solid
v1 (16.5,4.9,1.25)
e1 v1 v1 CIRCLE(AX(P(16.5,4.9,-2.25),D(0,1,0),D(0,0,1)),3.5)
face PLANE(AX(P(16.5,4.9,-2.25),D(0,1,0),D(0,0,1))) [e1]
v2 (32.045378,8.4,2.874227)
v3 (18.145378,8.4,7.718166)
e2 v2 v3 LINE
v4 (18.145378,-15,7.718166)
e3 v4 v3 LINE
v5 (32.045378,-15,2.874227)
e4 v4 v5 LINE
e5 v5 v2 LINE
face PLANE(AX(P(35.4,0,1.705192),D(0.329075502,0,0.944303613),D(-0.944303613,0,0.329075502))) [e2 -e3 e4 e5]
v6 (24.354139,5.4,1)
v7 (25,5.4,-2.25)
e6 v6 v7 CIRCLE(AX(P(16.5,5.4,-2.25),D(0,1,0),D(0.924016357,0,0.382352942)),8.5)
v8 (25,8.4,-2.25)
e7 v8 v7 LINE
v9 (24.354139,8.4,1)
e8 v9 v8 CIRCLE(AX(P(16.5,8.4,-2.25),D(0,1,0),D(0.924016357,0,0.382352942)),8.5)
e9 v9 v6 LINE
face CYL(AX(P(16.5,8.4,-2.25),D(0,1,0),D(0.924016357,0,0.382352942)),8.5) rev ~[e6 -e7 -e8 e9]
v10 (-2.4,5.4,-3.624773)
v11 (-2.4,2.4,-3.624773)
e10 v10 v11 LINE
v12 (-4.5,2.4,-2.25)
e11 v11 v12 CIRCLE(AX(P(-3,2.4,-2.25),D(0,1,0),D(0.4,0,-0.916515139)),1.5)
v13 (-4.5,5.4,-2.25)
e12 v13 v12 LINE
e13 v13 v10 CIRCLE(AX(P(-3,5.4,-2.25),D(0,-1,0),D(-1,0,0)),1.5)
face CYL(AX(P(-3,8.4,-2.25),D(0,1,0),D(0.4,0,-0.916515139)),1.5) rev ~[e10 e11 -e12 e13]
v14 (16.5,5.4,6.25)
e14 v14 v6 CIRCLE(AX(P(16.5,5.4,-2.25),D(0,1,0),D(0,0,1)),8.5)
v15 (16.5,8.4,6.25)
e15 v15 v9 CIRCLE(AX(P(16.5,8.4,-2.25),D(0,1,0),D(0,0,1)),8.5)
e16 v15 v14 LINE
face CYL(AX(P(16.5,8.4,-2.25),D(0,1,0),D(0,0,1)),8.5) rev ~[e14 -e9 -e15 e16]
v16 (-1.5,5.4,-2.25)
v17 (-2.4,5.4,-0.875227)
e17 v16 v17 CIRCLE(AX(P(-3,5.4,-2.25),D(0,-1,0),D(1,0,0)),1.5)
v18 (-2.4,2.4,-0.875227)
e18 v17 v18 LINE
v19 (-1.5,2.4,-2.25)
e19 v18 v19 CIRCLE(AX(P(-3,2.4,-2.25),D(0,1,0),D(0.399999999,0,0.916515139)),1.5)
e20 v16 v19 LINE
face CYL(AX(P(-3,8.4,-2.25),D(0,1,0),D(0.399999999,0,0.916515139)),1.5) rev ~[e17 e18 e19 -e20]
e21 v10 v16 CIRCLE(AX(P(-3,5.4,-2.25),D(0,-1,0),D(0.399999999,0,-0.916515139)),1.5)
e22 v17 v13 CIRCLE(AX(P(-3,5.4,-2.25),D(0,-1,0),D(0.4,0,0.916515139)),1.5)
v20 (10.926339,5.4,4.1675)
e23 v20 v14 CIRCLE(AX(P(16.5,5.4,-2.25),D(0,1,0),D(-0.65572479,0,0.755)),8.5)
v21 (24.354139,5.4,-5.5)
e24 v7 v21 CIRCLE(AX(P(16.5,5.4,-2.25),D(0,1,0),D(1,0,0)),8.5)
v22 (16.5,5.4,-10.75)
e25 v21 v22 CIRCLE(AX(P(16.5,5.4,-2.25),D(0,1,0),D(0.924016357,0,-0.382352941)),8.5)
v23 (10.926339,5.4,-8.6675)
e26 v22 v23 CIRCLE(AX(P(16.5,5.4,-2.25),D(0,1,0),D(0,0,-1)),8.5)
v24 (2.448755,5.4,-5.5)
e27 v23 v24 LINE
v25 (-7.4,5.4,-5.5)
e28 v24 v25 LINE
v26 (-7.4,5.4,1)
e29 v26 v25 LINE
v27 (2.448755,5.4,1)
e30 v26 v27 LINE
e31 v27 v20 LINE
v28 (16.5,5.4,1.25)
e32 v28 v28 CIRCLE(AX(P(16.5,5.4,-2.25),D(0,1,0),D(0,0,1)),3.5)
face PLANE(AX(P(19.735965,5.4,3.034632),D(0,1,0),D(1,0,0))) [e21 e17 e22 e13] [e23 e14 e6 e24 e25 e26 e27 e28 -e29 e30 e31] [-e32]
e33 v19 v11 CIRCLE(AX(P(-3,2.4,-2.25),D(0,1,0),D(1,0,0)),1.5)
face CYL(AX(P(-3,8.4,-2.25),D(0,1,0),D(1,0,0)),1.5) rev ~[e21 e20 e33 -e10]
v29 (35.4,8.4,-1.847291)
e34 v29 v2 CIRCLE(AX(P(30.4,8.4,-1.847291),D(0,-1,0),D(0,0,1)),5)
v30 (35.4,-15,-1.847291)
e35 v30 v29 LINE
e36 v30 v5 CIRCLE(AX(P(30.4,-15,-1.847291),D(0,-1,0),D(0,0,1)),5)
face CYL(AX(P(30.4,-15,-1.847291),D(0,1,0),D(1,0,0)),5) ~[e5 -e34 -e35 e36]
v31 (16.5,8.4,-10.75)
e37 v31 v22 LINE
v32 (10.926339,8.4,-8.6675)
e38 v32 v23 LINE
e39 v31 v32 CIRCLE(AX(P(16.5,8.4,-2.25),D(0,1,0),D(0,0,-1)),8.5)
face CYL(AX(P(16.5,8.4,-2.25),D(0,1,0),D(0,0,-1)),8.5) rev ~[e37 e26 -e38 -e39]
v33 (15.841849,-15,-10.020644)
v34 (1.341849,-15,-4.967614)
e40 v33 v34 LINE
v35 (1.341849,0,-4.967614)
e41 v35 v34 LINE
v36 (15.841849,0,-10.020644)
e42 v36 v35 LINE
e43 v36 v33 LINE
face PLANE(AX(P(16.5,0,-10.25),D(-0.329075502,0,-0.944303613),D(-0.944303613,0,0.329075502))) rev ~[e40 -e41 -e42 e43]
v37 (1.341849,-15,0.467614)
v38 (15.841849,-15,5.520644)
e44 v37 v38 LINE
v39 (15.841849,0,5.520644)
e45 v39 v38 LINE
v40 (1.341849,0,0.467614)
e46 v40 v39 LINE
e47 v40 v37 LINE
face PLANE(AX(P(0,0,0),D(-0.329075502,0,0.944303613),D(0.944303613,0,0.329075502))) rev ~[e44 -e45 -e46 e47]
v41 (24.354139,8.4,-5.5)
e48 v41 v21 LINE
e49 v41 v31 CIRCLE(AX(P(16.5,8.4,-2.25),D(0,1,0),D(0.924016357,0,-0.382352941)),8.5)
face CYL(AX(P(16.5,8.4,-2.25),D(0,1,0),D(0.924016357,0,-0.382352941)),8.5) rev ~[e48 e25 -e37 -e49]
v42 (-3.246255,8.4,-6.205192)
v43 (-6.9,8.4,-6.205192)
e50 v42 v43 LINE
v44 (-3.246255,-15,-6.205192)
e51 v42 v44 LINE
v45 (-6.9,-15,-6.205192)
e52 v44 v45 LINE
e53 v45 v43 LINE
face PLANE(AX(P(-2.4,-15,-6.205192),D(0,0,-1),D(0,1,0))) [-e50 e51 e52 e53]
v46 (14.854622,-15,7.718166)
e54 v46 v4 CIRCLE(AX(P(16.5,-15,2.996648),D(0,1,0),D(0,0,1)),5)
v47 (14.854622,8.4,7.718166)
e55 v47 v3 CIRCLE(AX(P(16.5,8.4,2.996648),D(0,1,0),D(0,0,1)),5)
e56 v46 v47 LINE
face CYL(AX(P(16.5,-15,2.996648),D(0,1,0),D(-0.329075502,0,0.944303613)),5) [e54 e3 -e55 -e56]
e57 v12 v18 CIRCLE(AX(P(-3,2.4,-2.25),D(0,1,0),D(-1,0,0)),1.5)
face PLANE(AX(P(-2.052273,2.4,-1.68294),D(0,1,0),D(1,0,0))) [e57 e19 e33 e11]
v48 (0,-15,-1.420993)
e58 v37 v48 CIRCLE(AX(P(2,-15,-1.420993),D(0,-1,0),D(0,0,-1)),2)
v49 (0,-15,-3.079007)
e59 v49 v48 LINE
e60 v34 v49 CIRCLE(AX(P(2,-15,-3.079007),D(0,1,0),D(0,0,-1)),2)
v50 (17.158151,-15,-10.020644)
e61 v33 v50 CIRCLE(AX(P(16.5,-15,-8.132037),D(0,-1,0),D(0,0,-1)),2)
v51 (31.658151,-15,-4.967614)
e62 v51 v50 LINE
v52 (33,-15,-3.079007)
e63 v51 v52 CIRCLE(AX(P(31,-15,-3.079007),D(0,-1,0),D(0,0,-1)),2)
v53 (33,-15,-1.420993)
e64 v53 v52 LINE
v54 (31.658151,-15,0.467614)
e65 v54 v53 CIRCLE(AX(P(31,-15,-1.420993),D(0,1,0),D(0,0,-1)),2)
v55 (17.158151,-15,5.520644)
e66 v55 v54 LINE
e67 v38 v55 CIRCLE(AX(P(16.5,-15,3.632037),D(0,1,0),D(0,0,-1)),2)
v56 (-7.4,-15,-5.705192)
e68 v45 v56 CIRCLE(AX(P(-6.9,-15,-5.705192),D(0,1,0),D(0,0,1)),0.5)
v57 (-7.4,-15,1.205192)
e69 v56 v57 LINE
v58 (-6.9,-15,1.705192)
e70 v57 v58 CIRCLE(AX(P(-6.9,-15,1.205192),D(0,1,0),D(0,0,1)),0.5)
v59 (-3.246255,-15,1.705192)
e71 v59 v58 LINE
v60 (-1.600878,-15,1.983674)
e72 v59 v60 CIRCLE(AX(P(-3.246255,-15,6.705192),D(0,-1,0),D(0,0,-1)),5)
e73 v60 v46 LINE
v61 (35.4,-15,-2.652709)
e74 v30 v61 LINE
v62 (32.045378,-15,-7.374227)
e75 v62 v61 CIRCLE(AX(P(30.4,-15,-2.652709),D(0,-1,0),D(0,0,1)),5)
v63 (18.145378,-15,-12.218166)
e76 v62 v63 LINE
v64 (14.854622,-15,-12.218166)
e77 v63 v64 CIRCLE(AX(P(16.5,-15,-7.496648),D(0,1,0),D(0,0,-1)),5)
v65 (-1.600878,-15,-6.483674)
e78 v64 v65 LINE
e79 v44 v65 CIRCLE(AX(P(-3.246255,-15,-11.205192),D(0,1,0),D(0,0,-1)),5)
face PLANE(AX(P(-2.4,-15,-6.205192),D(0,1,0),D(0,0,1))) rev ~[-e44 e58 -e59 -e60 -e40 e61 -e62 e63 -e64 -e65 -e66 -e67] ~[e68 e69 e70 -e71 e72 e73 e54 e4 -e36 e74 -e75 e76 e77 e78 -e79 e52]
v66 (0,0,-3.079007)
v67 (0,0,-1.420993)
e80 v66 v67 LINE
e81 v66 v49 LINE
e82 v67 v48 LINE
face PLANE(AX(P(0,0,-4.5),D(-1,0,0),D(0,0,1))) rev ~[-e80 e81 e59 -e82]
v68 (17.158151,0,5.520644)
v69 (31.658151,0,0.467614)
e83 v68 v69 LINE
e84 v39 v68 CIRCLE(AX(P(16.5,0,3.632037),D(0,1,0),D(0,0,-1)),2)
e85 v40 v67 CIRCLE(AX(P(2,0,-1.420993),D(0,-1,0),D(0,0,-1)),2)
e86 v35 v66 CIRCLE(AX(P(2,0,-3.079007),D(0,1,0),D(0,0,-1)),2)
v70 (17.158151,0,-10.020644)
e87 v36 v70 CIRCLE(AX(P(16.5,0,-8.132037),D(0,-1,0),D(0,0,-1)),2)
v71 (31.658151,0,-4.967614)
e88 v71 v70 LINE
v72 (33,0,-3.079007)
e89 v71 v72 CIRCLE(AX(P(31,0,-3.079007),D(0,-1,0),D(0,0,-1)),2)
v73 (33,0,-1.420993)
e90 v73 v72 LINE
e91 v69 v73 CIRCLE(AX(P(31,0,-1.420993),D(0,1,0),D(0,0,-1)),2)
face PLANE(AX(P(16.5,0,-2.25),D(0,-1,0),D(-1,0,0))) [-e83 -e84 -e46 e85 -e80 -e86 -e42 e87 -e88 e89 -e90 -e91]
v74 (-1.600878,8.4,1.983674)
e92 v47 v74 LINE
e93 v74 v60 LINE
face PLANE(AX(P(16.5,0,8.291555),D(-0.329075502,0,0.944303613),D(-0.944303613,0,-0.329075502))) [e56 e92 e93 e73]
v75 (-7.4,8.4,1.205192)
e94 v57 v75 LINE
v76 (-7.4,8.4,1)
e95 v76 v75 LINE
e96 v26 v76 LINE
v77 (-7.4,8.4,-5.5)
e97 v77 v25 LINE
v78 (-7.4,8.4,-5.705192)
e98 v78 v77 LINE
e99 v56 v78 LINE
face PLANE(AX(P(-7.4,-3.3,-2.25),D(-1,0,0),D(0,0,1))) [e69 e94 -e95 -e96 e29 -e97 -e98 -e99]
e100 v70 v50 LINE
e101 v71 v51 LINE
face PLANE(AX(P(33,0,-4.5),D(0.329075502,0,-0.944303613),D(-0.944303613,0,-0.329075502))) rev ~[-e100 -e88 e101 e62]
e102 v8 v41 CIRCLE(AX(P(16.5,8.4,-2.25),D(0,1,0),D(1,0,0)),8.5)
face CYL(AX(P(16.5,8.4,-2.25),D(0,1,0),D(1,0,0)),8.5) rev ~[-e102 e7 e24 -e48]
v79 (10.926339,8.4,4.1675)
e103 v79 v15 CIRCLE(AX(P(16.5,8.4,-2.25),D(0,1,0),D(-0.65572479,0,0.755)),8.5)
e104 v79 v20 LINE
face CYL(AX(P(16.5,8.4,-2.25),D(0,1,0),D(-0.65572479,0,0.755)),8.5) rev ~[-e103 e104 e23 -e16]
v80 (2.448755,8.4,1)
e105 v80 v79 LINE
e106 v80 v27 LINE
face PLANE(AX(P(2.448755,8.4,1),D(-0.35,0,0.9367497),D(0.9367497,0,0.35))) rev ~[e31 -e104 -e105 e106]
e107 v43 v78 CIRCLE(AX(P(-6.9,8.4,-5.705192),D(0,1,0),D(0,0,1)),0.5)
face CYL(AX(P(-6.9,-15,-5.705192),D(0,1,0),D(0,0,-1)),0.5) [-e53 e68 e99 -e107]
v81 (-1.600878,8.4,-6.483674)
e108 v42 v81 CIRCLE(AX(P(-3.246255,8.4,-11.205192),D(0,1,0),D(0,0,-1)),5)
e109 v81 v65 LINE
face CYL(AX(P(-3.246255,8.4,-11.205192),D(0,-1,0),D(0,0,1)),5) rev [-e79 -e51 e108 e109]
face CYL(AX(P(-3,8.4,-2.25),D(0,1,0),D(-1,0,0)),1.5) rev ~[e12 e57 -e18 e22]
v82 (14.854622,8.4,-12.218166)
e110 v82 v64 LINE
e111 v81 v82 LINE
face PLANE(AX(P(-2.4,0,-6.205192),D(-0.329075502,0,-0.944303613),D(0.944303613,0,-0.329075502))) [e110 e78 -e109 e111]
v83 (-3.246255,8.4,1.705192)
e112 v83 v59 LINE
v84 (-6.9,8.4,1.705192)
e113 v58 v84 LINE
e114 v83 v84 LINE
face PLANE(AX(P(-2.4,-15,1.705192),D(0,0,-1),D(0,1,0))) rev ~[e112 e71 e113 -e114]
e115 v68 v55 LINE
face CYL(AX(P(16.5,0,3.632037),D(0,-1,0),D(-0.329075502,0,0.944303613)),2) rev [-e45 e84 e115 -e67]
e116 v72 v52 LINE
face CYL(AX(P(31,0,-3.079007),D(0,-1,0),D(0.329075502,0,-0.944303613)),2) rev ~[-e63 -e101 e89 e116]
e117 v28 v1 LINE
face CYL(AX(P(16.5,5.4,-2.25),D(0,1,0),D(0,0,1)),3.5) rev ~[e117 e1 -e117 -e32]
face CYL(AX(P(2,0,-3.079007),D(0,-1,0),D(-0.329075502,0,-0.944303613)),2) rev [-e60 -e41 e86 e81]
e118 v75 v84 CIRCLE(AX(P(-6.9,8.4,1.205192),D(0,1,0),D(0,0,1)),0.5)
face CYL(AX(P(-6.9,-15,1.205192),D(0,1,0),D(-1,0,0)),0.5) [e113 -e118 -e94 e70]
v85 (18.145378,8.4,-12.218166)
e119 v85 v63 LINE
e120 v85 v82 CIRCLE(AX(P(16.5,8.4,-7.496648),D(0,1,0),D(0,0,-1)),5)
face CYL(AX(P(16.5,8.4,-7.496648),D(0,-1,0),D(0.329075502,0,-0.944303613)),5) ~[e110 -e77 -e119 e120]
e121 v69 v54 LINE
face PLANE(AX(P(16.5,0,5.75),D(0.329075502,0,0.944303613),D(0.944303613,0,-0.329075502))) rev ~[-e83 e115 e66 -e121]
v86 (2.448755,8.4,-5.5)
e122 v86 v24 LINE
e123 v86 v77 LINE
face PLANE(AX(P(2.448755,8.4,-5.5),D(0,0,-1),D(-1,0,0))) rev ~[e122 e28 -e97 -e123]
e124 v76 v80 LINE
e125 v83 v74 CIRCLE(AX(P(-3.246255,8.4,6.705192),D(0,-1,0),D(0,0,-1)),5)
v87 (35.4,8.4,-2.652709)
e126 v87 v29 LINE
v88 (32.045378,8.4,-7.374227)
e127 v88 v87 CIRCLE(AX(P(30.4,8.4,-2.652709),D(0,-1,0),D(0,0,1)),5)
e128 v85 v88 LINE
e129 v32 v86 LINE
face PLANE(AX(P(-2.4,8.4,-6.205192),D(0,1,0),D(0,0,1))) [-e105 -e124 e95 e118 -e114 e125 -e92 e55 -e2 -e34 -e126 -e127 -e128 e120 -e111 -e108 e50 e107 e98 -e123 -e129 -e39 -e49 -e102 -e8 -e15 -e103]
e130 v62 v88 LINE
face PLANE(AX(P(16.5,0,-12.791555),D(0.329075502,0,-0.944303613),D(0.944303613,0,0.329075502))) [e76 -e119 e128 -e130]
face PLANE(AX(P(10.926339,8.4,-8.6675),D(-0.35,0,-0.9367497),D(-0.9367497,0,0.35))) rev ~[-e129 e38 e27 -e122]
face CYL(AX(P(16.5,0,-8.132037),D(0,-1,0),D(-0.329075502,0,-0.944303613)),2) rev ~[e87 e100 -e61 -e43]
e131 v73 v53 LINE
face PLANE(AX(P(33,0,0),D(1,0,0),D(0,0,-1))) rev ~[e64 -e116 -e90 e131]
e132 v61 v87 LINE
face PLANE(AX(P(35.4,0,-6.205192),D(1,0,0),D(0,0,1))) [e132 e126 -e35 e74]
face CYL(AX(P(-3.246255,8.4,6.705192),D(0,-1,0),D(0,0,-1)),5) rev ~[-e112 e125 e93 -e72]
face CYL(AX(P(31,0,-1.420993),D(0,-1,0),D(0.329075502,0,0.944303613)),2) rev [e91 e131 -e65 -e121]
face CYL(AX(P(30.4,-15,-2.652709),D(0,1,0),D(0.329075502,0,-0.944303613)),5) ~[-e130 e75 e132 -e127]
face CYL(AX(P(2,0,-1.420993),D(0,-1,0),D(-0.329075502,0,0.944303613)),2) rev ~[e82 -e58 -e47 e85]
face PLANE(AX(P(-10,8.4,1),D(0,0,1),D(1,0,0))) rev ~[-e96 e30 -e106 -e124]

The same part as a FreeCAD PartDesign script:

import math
import FreeCAD as App
import Part
import Sketcher

V = App.Vector


def edges_at(feature, points):
    """Names of the edges that pass closest to the given points."""
    edges = feature.Shape.Edges
    near = lambda p: min(range(len(edges)), key=lambda i: edges[i].distToShape(Part.Vertex(*p))[0])
    return sorted({f"Edge{near(p) + 1}" for p in points})

doc = App.newDocument("Part")
body = doc.addObject("PartDesign::Body", "Body")

# Sketch on XZ plane
sketch1 = body.newObject("Sketcher::SketchObject", "Sketch")
sketch1.AttachmentSupport = (doc.getObject("XZ_Plane"), [""])
sketch1.MapMode = "FlatFace"
sketch1.addGeometry(Part.LineSegment(V(-2.4, 1.705192, 0), V(16.5, 8.291555, 0)), False)
sketch1.addGeometry(Part.LineSegment(V(16.5, 8.291555, 0), V(35.4, 1.705192, 0)), False)
sketch1.addGeometry(Part.LineSegment(V(35.4, 1.705192, 0), V(35.4, -6.205192, 0)), False)
sketch1.addGeometry(Part.LineSegment(V(35.4, -6.205192, 0), V(16.5, -12.791555, 0)), False)
sketch1.addGeometry(Part.LineSegment(V(16.5, -12.791555, 0), V(-2.4, -6.205192, 0)), False)
sketch1.addGeometry(Part.LineSegment(V(-2.4, -6.205192, 0), V(-2.4, 1.705192, 0)), False)
sketch1.addGeometry(Part.LineSegment(V(16.5, 5.75, 0), V(0, 0, 0)), False)
sketch1.addGeometry(Part.LineSegment(V(0, 0, 0), V(0, -4.5, 0)), False)
sketch1.addGeometry(Part.LineSegment(V(0, -4.5, 0), V(16.5, -10.25, 0)), False)
sketch1.addGeometry(Part.LineSegment(V(16.5, -10.25, 0), V(33, -4.5, 0)), False)
sketch1.addGeometry(Part.LineSegment(V(33, -4.5, 0), V(33, 0, 0)), False)
sketch1.addGeometry(Part.LineSegment(V(33, 0, 0), V(16.5, 5.75, 0)), False)
sketch1.addConstraint(Sketcher.Constraint("Coincident", 0, 2, 1, 1))
sketch1.addConstraint(Sketcher.Constraint("Coincident", 1, 2, 2, 1))
sketch1.addConstraint(Sketcher.Constraint("Coincident", 2, 2, 3, 1))
sketch1.addConstraint(Sketcher.Constraint("Coincident", 3, 2, 4, 1))
sketch1.addConstraint(Sketcher.Constraint("Coincident", 4, 2, 5, 1))
sketch1.addConstraint(Sketcher.Constraint("Coincident", 5, 2, 0, 1))
sketch1.addConstraint(Sketcher.Constraint("Coincident", 6, 2, 7, 1))
sketch1.addConstraint(Sketcher.Constraint("Coincident", 7, 2, 8, 1))
sketch1.addConstraint(Sketcher.Constraint("Coincident", 8, 2, 9, 1))
sketch1.addConstraint(Sketcher.Constraint("Coincident", 9, 2, 10, 1))
sketch1.addConstraint(Sketcher.Constraint("Coincident", 10, 2, 11, 1))
sketch1.addConstraint(Sketcher.Constraint("Coincident", 11, 2, 6, 1))
sketch1.addConstraint(Sketcher.Constraint("Vertical", 2))
sketch1.addConstraint(Sketcher.Constraint("Vertical", 5))
sketch1.addConstraint(Sketcher.Constraint("Vertical", 7))
sketch1.addConstraint(Sketcher.Constraint("Vertical", 10))
sketch1.addConstraint(Sketcher.Constraint("Coincident", 6, 2, -1, 1))
sketch1.addConstraint(Sketcher.Constraint("PointOnObject", 10, 2, -1))
sketch1.addConstraint(Sketcher.Constraint("Parallel", 0, 3))
sketch1.addConstraint(Sketcher.Constraint("Parallel", 1, 4))
sketch1.addConstraint(Sketcher.Constraint("Parallel", 3, 6))
sketch1.addConstraint(Sketcher.Constraint("Parallel", 4, 8))
sketch1.addConstraint(Sketcher.Constraint("Parallel", 6, 9))
sketch1.addConstraint(Sketcher.Constraint("Parallel", 8, 11))
sketch1.addConstraint(Sketcher.Constraint("Horizontal", 2, 2, 4, 2))
sketch1.addConstraint(Sketcher.Constraint("Horizontal", 1, 2, 5, 2))
sketch1.addConstraint(Sketcher.Constraint("Horizontal", 7, 2, 9, 2))
sketch1.addConstraint(Sketcher.Constraint("Vertical", 0, 2, 3, 2))
sketch1.addConstraint(Sketcher.Constraint("Vertical", 3, 2, 8, 2))
sketch1.addConstraint(Sketcher.Constraint("DistanceY", 7, 2, 7, 1, 4.5))
sketch1.addConstraint(Sketcher.Constraint("DistanceX", -1, 1, 9, 2, 33.0))
sketch1.addConstraint(Sketcher.Constraint("DistanceY", 8, 2, 11, 2, 16.0))
sketch1.addConstraint(Sketcher.Constraint("DistanceX", -1, 1, 1, 2, 35.4))
sketch1.addConstraint(Sketcher.Constraint("DistanceY", 2, 2, 2, 1, 7.910384))
sketch1.addConstraint(Sketcher.Constraint("DistanceY", -1, 1, 1, 2, 1.705192))
pad1 = body.newObject("PartDesign::Pad", "Pad")
pad1.Profile = sketch1
pad1.Length = 15
doc.recompute()

fillet = body.newObject("PartDesign::Fillet", "Fillet")
fillet.Base = (pad1, edges_at(pad1, [(0, -7.5, -4.5)]))
fillet.Radius = 2
doc.recompute()

fillet2 = body.newObject("PartDesign::Fillet", "Fillet001")
fillet2.Base = (fillet, edges_at(fillet, [(16.5, -7.5, -10.25)]))
fillet2.Radius = 2
doc.recompute()

fillet3 = body.newObject("PartDesign::Fillet", "Fillet002")
fillet3.Base = (fillet2, edges_at(fillet2, [(33, -7.5, -4.5)]))
fillet3.Radius = 2
doc.recompute()

fillet4 = body.newObject("PartDesign::Fillet", "Fillet003")
fillet4.Base = (fillet3, edges_at(fillet3, [(0, -7.5, 0)]))
fillet4.Radius = 2
doc.recompute()

fillet5 = body.newObject("PartDesign::Fillet", "Fillet004")
fillet5.Base = (fillet4, edges_at(fillet4, [(16.5, -7.5, 5.75)]))
fillet5.Radius = 2
doc.recompute()

fillet6 = body.newObject("PartDesign::Fillet", "Fillet005")
fillet6.Base = (fillet5, edges_at(fillet5, [(33, -7.5, 0)]))
fillet6.Radius = 2

# Sketch on XZ plane
sketch2 = body.newObject("Sketcher::SketchObject", "Sketch001")
sketch2.AttachmentSupport = (doc.getObject("XZ_Plane"), [""])
sketch2.MapMode = "FlatFace"
sketch2.addGeometry(Part.LineSegment(V(-2.4, 1.705192, 0), V(16.5, 8.291555, 0)), False)
sketch2.addGeometry(Part.LineSegment(V(16.5, 8.291555, 0), V(35.4, 1.705192, 0)), False)
sketch2.addGeometry(Part.LineSegment(V(35.4, 1.705192, 0), V(35.4, -6.205192, 0)), False)
sketch2.addGeometry(Part.LineSegment(V(35.4, -6.205192, 0), V(16.5, -12.791555, 0)), False)
sketch2.addGeometry(Part.LineSegment(V(16.5, -12.791555, 0), V(-2.4, -6.205192, 0)), False)
sketch2.addGeometry(Part.LineSegment(V(-2.4, -6.205192, 0), V(-2.4, 1.705192, 0)), False)
sketch2.addConstraint(Sketcher.Constraint("Coincident", 0, 2, 1, 1))
sketch2.addConstraint(Sketcher.Constraint("Coincident", 1, 2, 2, 1))
sketch2.addConstraint(Sketcher.Constraint("Coincident", 2, 2, 3, 1))
sketch2.addConstraint(Sketcher.Constraint("Coincident", 3, 2, 4, 1))
sketch2.addConstraint(Sketcher.Constraint("Coincident", 4, 2, 5, 1))
sketch2.addConstraint(Sketcher.Constraint("Coincident", 5, 2, 0, 1))
sketch2.addConstraint(Sketcher.Constraint("Vertical", 2))
sketch2.addConstraint(Sketcher.Constraint("Vertical", 5))
sketch2.addConstraint(Sketcher.Constraint("Parallel", 0, 3))
sketch2.addConstraint(Sketcher.Constraint("Parallel", 1, 4))
sketch2.addConstraint(Sketcher.Constraint("Horizontal", 2, 2, 4, 2))
sketch2.addConstraint(Sketcher.Constraint("Horizontal", 1, 2, 5, 2))
sketch2.addConstraint(Sketcher.Constraint("Vertical", 0, 2, 3, 2))
sketch2.addConstraint(Sketcher.Constraint("DistanceX", -1, 1, 0, 2, 16.5))
sketch2.addConstraint(Sketcher.Constraint("DistanceX", -1, 1, 1, 2, 35.4))
sketch2.addConstraint(Sketcher.Constraint("Distance", 0, 20.014749))
sketch2.addConstraint(Sketcher.Constraint("DistanceY", 2, 2, 2, 1, 7.910384))
sketch2.addConstraint(Sketcher.Constraint("DistanceY", -1, 1, 1, 2, 1.705192))
pad2 = body.newObject("PartDesign::Pad", "Pad001")
pad2.Profile = sketch2
pad2.Length = 8.4
pad2.Reversed = True

# Sketch on YZ plane
sketch3 = body.newObject("Sketcher::SketchObject", "Sketch002")
sketch3.AttachmentSupport = (doc.getObject("YZ_Plane"), [""])
sketch3.MapMode = "FlatFace"
sketch3.AttachmentOffset = App.Placement(V(0, 0, -2.4), App.Rotation())
sketch3.addGeometry(Part.LineSegment(V(8.4, -6.205192, 0), V(-15, -6.205192, 0)), False)
sketch3.addGeometry(Part.LineSegment(V(-15, -6.205192, 0), V(-15, 1.705192, 0)), False)
sketch3.addGeometry(Part.LineSegment(V(-15, 1.705192, 0), V(8.4, 1.705192, 0)), False)
sketch3.addGeometry(Part.LineSegment(V(8.4, 1.705192, 0), V(8.4, -6.205192, 0)), False)
sketch3.addConstraint(Sketcher.Constraint("Coincident", 0, 2, 1, 1))
sketch3.addConstraint(Sketcher.Constraint("Coincident", 1, 2, 2, 1))
sketch3.addConstraint(Sketcher.Constraint("Coincident", 2, 2, 3, 1))
sketch3.addConstraint(Sketcher.Constraint("Coincident", 3, 2, 0, 1))
sketch3.addConstraint(Sketcher.Constraint("Horizontal", 0))
sketch3.addConstraint(Sketcher.Constraint("Vertical", 1))
sketch3.addConstraint(Sketcher.Constraint("Horizontal", 2))
sketch3.addConstraint(Sketcher.Constraint("Vertical", 3))
sketch3.addConstraint(Sketcher.Constraint("DistanceX", 0, 2, 0, 1, 23.4))
sketch3.addConstraint(Sketcher.Constraint("DistanceX", 0, 2, -1, 1, 15.0))
sketch3.addConstraint(Sketcher.Constraint("DistanceY", 1, 1, 1, 2, 7.910384))
sketch3.addConstraint(Sketcher.Constraint("DistanceY", 0, 2, -1, 1, 6.205192))
pad3 = body.newObject("PartDesign::Pad", "Pad002")
pad3.Profile = sketch3
pad3.Length = 5
pad3.Reversed = True

# Sketch on XZ plane
sketch4 = body.newObject("Sketcher::SketchObject", "Sketch003")
sketch4.AttachmentSupport = (doc.getObject("XZ_Plane"), [""])
sketch4.MapMode = "FlatFace"
sketch4.AttachmentOffset = App.Placement(V(0, 0, -8.4), App.Rotation())
sketch4.addGeometry(Part.ArcOfCircle(Part.Circle(V(-3, -2.25, 0), V(0, 0, 1), 1.5), math.radians(66.421821), math.radians(180)), False)
sketch4.addGeometry(Part.ArcOfCircle(Part.Circle(V(-3, -2.25, 0), V(0, 0, 1), 1.5), math.radians(0), math.radians(66.421822)), False)
sketch4.addGeometry(Part.ArcOfCircle(Part.Circle(V(-3, -2.25, 0), V(0, 0, 1), 1.5), math.radians(-66.421822), math.radians(0)), False)
sketch4.addGeometry(Part.ArcOfCircle(Part.Circle(V(-3, -2.25, 0), V(0, 0, 1), 1.5), math.radians(180), math.radians(293.578179)), False)
sketch4.addConstraint(Sketcher.Constraint("Tangent", 0, 1, 1, 2))
sketch4.addConstraint(Sketcher.Constraint("Tangent", 1, 1, 2, 2))
sketch4.addConstraint(Sketcher.Constraint("Tangent", 2, 1, 3, 2))
sketch4.addConstraint(Sketcher.Constraint("Tangent", 3, 1, 0, 2))
sketch4.addConstraint(Sketcher.Constraint("Equal", 0, 1))
sketch4.addConstraint(Sketcher.Constraint("Horizontal", 3, 3, 1, 1))
sketch4.addConstraint(Sketcher.Constraint("Horizontal", 1, 1, 3, 1))
sketch4.addConstraint(Sketcher.Constraint("Vertical", 0, 1, 2, 1))
sketch4.addConstraint(Sketcher.Constraint("Radius", 0, 1.5))
sketch4.addConstraint(Sketcher.Constraint("DistanceX", 0, 3, -1, 1, 3.0))
sketch4.addConstraint(Sketcher.Constraint("DistanceX", 0, 1, -1, 1, 2.4))
sketch4.addConstraint(Sketcher.Constraint("DistanceY", 0, 3, -1, 1, 2.25))
pocket1 = body.newObject("PartDesign::Pocket", "Pocket")
pocket1.Profile = sketch4
pocket1.Length = 6
pocket1.Reversed = True

# Sketch on XZ plane
sketch5 = body.newObject("Sketcher::SketchObject", "Sketch004")
sketch5.AttachmentSupport = (doc.getObject("XZ_Plane"), [""])
sketch5.MapMode = "FlatFace"
sketch5.AttachmentOffset = App.Placement(V(0, 0, -8.4), App.Rotation())
sketch5.addGeometry(Part.LineSegment(V(2.448755, 1, 0), V(10.926339, 4.1675, 0)), False)
sketch5.addGeometry(Part.ArcOfCircle(Part.Circle(V(16.5, -2.25, 0), V(0, 0, 1), 8.5), math.radians(90), math.radians(130.97463)), False)
sketch5.addGeometry(Part.ArcOfCircle(Part.Circle(V(16.5, -2.25, 0), V(0, 0, 1), 8.5), math.radians(22.479506), math.radians(90)), False)
sketch5.addGeometry(Part.ArcOfCircle(Part.Circle(V(16.5, -2.25, 0), V(0, 0, 1), 8.5), math.radians(0), math.radians(22.479506)), False)
sketch5.addGeometry(Part.ArcOfCircle(Part.Circle(V(16.5, -2.25, 0), V(0, 0, 1), 8.5), math.radians(-22.479506), math.radians(0)), False)
sketch5.addGeometry(Part.ArcOfCircle(Part.Circle(V(16.5, -2.25, 0), V(0, 0, 1), 8.5), math.radians(-90), math.radians(-22.479506)), False)
sketch5.addGeometry(Part.ArcOfCircle(Part.Circle(V(16.5, -2.25, 0), V(0, 0, 1), 8.5), math.radians(-130.97463), math.radians(-90)), False)
sketch5.addGeometry(Part.LineSegment(V(10.926339, -8.6675, 0), V(2.448755, -5.5, 0)), False)
sketch5.addGeometry(Part.LineSegment(V(2.448755, -5.5, 0), V(-10, -5.5, 0)), False)
sketch5.addGeometry(Part.LineSegment(V(-10, -5.5, 0), V(-10, 1, 0)), False)
sketch5.addGeometry(Part.LineSegment(V(-10, 1, 0), V(2.448755, 1, 0)), False)
sketch5.addGeometry(Part.ArcOfCircle(Part.Circle(V(-3, -2.25, 0), V(0, 0, 1), 1.5), math.radians(180), math.radians(293.578179)), False)
sketch5.addGeometry(Part.ArcOfCircle(Part.Circle(V(-3, -2.25, 0), V(0, 0, 1), 1.5), math.radians(-66.421822), math.radians(0)), False)
sketch5.addGeometry(Part.ArcOfCircle(Part.Circle(V(-3, -2.25, 0), V(0, 0, 1), 1.5), math.radians(0), math.radians(66.421822)), False)
sketch5.addGeometry(Part.ArcOfCircle(Part.Circle(V(-3, -2.25, 0), V(0, 0, 1), 1.5), math.radians(66.421821), math.radians(180)), False)
sketch5.addConstraint(Sketcher.Constraint("Coincident", 0, 2, 1, 2))
sketch5.addConstraint(Sketcher.Constraint("Tangent", 1, 1, 2, 2))
sketch5.addConstraint(Sketcher.Constraint("Tangent", 2, 1, 3, 2))
sketch5.addConstraint(Sketcher.Constraint("Tangent", 3, 1, 4, 2))
sketch5.addConstraint(Sketcher.Constraint("Tangent", 4, 1, 5, 2))
sketch5.addConstraint(Sketcher.Constraint("Tangent", 5, 1, 6, 2))
sketch5.addConstraint(Sketcher.Constraint("Coincident", 6, 1, 7, 1))
sketch5.addConstraint(Sketcher.Constraint("Coincident", 7, 2, 8, 1))
sketch5.addConstraint(Sketcher.Constraint("Coincident", 8, 2, 9, 1))
sketch5.addConstraint(Sketcher.Constraint("Coincident", 9, 2, 10, 1))
sketch5.addConstraint(Sketcher.Constraint("Coincident", 10, 2, 0, 1))
sketch5.addConstraint(Sketcher.Constraint("Tangent", 11, 2, 12, 1))
sketch5.addConstraint(Sketcher.Constraint("Tangent", 12, 2, 13, 1))
sketch5.addConstraint(Sketcher.Constraint("Tangent", 13, 2, 14, 1))
sketch5.addConstraint(Sketcher.Constraint("Tangent", 14, 2, 11, 1))
sketch5.addConstraint(Sketcher.Constraint("Horizontal", 8))
sketch5.addConstraint(Sketcher.Constraint("Vertical", 9))
sketch5.addConstraint(Sketcher.Constraint("Horizontal", 10))
sketch5.addConstraint(Sketcher.Constraint("Coincident", 3, 3, 1, 3))
sketch5.addConstraint(Sketcher.Constraint("Coincident", 5, 3, 1, 3))
sketch5.addConstraint(Sketcher.Constraint("Equal", 5, 6))
sketch5.addConstraint(Sketcher.Constraint("Equal", 11, 12))
sketch5.addConstraint(Sketcher.Constraint("Horizontal", 6, 3, 11, 3))
sketch5.addConstraint(Sketcher.Constraint("Horizontal", 14, 3, 3, 1))
sketch5.addConstraint(Sketcher.Constraint("Horizontal", 4, 1, 7, 2))
sketch5.addConstraint(Sketcher.Constraint("Horizontal", 2, 1, 9, 2))
sketch5.addConstraint(Sketcher.Constraint("Horizontal", 3, 1, 12, 2))
sketch5.addConstraint(Sketcher.Constraint("Horizontal", 12, 2, 14, 2))
sketch5.addConstraint(Sketcher.Constraint("Vertical", 6, 3, 1, 1))
sketch5.addConstraint(Sketcher.Constraint("Vertical", 2, 1, 4, 1))
sketch5.addConstraint(Sketcher.Constraint("Vertical", 1, 1, 5, 1))
sketch5.addConstraint(Sketcher.Constraint("Vertical", 0, 2, 6, 1))
sketch5.addConstraint(Sketcher.Constraint("Vertical", 7, 2, 10, 2))
sketch5.addConstraint(Sketcher.Constraint("Vertical", 11, 2, 13, 2))
sketch5.addConstraint(Sketcher.Constraint("Radius", 1, 8.5))
sketch5.addConstraint(Sketcher.Constraint("Radius", 11, 1.5))
sketch5.addConstraint(Sketcher.Constraint("DistanceY", 9, 1, 9, 2, 6.5))
sketch5.addConstraint(Sketcher.Constraint("DistanceX", 11, 3, -1, 1, 3.0))
sketch5.addConstraint(Sketcher.Constraint("DistanceY", -1, 1, 2, 1, 1.0))
sketch5.addConstraint(Sketcher.Constraint("DistanceX", -1, 1, 3, 1, 25.0))
sketch5.addConstraint(Sketcher.Constraint("DistanceX", 8, 2, -1, 1, 10.0))
sketch5.addConstraint(Sketcher.Constraint("DistanceX", 11, 2, -1, 1, 2.4))
sketch5.addConstraint(Sketcher.Constraint("Distance", 0, 9.05))
sketch5.addConstraint(Sketcher.Constraint("DistanceY", -1, 1, 0, 2, 4.1675))
pocket2 = body.newObject("PartDesign::Pocket", "Pocket001")
pocket2.Profile = sketch5
pocket2.Length = 3
pocket2.Reversed = True

# Sketch on XZ plane
sketch6 = body.newObject("Sketcher::SketchObject", "Sketch005")
sketch6.AttachmentSupport = (doc.getObject("XZ_Plane"), [""])
sketch6.MapMode = "FlatFace"
sketch6.AttachmentOffset = App.Placement(V(0, 0, -5.4), App.Rotation())
sketch6.addGeometry(Part.Circle(V(16.5, -2.25, 0), V(0, 0, 1), 3.5), False)
sketch6.addConstraint(Sketcher.Constraint("Diameter", 0, 7.0))
sketch6.addConstraint(Sketcher.Constraint("DistanceX", -1, 1, 0, 3, 16.5))
sketch6.addConstraint(Sketcher.Constraint("DistanceY", 0, 3, -1, 1, 2.25))
pocket3 = body.newObject("PartDesign::Pocket", "Pocket002")
pocket3.Profile = sketch6
pocket3.Length = 0.5
pocket3.Reversed = True
doc.recompute()

fillet7 = body.newObject("PartDesign::Fillet", "Fillet006")
fillet7.Base = (pocket3, edges_at(pocket3, [(-7.4, -3.3, -6.205)]))
fillet7.Radius = 0.5
doc.recompute()

fillet8 = body.newObject("PartDesign::Fillet", "Fillet007")
fillet8.Base = (fillet7, edges_at(fillet7, [(-7.4, -3.3, 1.705)]))
fillet8.Radius = 0.5
doc.recompute()

fillet9 = body.newObject("PartDesign::Fillet", "Fillet008")
fillet9.Base = (fillet8, edges_at(fillet8, [(-2.4, -3.3, -6.205)]))
fillet9.Radius = 5
doc.recompute()

fillet10 = body.newObject("PartDesign::Fillet", "Fillet009")
fillet10.Base = (fillet9, edges_at(fillet9, [(-2.4, -3.3, 1.705)]))
fillet10.Radius = 5
doc.recompute()

fillet11 = body.newObject("PartDesign::Fillet", "Fillet010")
fillet11.Base = (fillet10, edges_at(fillet10, [(16.5, -3.3, 8.292)]))
fillet11.Radius = 5
doc.recompute()

fillet12 = body.newObject("PartDesign::Fillet", "Fillet011")
fillet12.Base = (fillet11, edges_at(fillet11, [(16.5, -3.3, -12.792)]))
fillet12.Radius = 5
doc.recompute()

fillet13 = body.newObject("PartDesign::Fillet", "Fillet012")
fillet13.Base = (fillet12, edges_at(fillet12, [(35.4, -3.3, -6.205)]))
fillet13.Radius = 5
doc.recompute()

fillet14 = body.newObject("PartDesign::Fillet", "Fillet013")
fillet14.Base = (fillet13, edges_at(fillet13, [(35.4, -3.3, 1.705)]))
fillet14.Radius = 5

doc.recompute()
